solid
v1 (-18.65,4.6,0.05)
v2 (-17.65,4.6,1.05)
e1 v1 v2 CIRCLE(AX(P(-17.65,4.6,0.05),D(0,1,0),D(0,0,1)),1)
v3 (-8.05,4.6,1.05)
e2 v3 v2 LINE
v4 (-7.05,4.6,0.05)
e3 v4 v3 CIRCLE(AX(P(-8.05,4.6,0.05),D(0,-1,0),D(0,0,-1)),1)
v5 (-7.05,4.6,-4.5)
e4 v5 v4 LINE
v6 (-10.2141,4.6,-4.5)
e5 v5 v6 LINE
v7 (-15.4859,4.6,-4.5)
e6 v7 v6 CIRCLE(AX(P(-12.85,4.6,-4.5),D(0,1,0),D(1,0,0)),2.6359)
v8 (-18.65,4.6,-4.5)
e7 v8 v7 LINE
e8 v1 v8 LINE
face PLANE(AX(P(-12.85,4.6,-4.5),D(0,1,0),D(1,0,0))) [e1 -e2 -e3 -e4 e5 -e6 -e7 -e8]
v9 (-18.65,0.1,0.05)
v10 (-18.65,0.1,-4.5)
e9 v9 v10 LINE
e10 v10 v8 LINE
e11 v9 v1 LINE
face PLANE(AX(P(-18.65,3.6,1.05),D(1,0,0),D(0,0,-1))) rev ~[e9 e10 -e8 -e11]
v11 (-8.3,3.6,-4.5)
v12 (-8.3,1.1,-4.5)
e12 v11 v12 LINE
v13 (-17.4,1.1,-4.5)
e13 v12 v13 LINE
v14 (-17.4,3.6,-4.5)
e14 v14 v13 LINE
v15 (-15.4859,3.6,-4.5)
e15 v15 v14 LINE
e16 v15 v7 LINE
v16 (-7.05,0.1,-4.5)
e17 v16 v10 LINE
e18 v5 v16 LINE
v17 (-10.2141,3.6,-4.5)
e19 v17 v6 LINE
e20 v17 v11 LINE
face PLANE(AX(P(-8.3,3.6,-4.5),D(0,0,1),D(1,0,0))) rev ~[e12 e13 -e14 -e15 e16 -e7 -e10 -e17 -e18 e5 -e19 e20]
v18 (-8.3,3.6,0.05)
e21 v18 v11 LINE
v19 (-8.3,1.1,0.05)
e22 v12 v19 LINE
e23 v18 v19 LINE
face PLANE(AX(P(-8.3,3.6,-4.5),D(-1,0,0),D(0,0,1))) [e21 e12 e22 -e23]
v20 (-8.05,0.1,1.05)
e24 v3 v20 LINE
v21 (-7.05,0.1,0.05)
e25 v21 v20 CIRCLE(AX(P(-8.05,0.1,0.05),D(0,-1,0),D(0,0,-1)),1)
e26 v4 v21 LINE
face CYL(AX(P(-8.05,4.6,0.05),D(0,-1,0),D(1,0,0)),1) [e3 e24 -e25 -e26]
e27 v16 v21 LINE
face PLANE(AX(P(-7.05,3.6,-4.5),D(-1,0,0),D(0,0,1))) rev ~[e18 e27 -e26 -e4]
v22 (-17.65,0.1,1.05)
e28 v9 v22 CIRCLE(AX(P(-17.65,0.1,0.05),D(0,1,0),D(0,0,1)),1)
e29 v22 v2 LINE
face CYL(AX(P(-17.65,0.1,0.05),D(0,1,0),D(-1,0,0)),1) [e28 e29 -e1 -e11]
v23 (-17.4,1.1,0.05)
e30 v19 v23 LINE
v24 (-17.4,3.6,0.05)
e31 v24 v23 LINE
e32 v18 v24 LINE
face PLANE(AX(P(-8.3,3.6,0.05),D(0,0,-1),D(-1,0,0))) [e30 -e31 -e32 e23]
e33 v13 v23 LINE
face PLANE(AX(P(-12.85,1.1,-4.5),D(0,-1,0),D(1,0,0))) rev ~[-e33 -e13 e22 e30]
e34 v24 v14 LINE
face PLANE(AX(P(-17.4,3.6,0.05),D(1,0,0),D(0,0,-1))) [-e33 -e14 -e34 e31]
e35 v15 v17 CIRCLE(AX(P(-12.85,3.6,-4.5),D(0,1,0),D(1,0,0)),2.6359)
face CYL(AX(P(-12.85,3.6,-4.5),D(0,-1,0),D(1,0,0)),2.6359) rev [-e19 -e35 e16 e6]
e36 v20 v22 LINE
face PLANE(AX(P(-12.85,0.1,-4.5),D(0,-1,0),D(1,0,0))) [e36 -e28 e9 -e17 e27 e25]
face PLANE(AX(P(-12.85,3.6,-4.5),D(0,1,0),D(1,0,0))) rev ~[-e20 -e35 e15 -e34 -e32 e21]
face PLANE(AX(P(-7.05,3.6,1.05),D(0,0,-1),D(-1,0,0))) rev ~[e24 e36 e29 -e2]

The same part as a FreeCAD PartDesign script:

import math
import FreeCAD as App
import Part
import Sketcher
Q = App.Units.Quantity


def edges_at(feature, points):
    """Names of the edges that pass closest to the given points."""
    edges = feature.Shape.Edges
    near = lambda p: min(range(len(edges)), key=lambda i: edges[i].distToShape(Part.Vertex(*p))[0])
    return sorted({f"Edge{near(p) + 1}" for p in points})

doc = App.newDocument("Part")
params = doc.addObject("Spreadsheet::Sheet", "Params")
for row, (alias, value) in enumerate([
    ("sketch1_width", "11.6 mm"),
    ("sketch1_width2", "9.1 mm"),
    ("sketch1_height", "5.55 mm"),
    ("pad1_length", "2.5 mm"),
    ("sketch2_width", "11.6 mm"),
    ("sketch2_height", "5.55 mm"),
    ("pad2_length", "1 mm"),
    ("sketch3_width", "11.6 mm"),
    ("sketch3_height", "5.55 mm"),
    ("pad3_length", "1 mm"),
    ("fillet_radius", "1 mm"),
], start=1):
    params.set(f"A{row}", alias)
    params.set(f"B{row}", "=" + value)
    params.setAlias(f"B{row}", alias)

body = doc.addObject("PartDesign::Body", "Body")

# Sketch on XZ plane
sketch1 = body.newObject("Sketcher::SketchObject", "Sketch")
sketch1.AttachmentSupport = (doc.getObject("XZ_Plane"), [""])
sketch1.MapMode = "FlatFace"
sketch1.AttachmentOffset = App.Placement(App.Vector(0, 0, -3.6), App.Rotation())
sketch1.addGeometry(Part.LineSegment(App.Vector(-8.3, -4.5, 0), App.Vector(-7.05, -4.5, 0)), False)
sketch1.addGeometry(Part.LineSegment(App.Vector(-7.05, -4.5, 0), App.Vector(-7.05, 1.05, 0)), False)
sketch1.addGeometry(Part.LineSegment(App.Vector(-7.05, 1.05, 0), App.Vector(-18.65, 1.05, 0)), False)
sketch1.addGeometry(Part.LineSegment(App.Vector(-18.65, 1.05, 0), App.Vector(-18.65, -4.5, 0)), False)
sketch1.addGeometry(Part.LineSegment(App.Vector(-18.65, -4.5, 0), App.Vector(-17.4, -4.5, 0)), False)
sketch1.addGeometry(Part.LineSegment(App.Vector(-17.4, -4.5, 0), App.Vector(-17.4, 0.05, 0)), False)
sketch1.addGeometry(Part.LineSegment(App.Vector(-17.4, 0.05, 0), App.Vector(-8.3, 0.05, 0)), False)
sketch1.addGeometry(Part.LineSegment(App.Vector(-8.3, 0.05, 0), App.Vector(-8.3, -4.5, 0)), False)
sketch1.addConstraint(Sketcher.Constraint("Coincident", 0, 2, 1, 1))
sketch1.addConstraint(Sketcher.Constraint("Coincident", 1, 2, 2, 1))
sketch1.addConstraint(Sketcher.Constraint("Coincident", 2, 2, 3, 1))
sketch1.addConstraint(Sketcher.Constraint("Coincident", 3, 2, 4, 1))
sketch1.addConstraint(Sketcher.Constraint("Coincident", 4, 2, 5, 1))
sketch1.addConstraint(Sketcher.Constraint("Coincident", 5, 2, 6, 1))
sketch1.addConstraint(Sketcher.Constraint("Coincident", 6, 2, 7, 1))
sketch1.addConstraint(Sketcher.Constraint("Coincident", 7, 2, 0, 1))
sketch1.addConstraint(Sketcher.Constraint("Horizontal", 0))
sketch1.addConstraint(Sketcher.Constraint("Vertical", 1))
sketch1.addConstraint(Sketcher.Constraint("Horizontal", 2))
sketch1.addConstraint(Sketcher.Constraint("Vertical", 3))
sketch1.addConstraint(Sketcher.Constraint("Horizontal", 4))
sketch1.addConstraint(Sketcher.Constraint("Vertical", 5))
sketch1.addConstraint(Sketcher.Constraint("Horizontal", 6))
sketch1.addConstraint(Sketcher.Constraint("Vertical", 7))
sketch1.addConstraint(Sketcher.Constraint("Horizontal", 0, 2, 3, 2))
sketch1.addConstraint(Sketcher.Constraint("Equal", 0, 4))
sketch1.addConstraint(Sketcher.Constraint("DistanceY", 5, 2, 2, 2, Q("1 mm")))
sketch1.addConstraint(Sketcher.Constraint("DistanceX", 2, 2, 2, 1, Q("11.6 mm")))
sketch1.addConstraint(Sketcher.Constraint("DistanceX", 6, 1, 6, 2, Q("9.1 mm")))
sketch1.addConstraint(Sketcher.Constraint("DistanceY", 1, 1, 1, 2, Q("5.55 mm")))
sketch1.addConstraint(Sketcher.Constraint("DistanceY", 0, 2, -1, 1, Q("4.5 mm")))
sketch1.addConstraint(Sketcher.Constraint("DistanceX", 4, 2, -1, 1, Q("17.4 mm")))
sketch1.setExpression("Constraints[19]", "Params.sketch1_width")
sketch1.setExpression("Constraints[20]", "Params.sketch1_width2")
sketch1.setExpression("Constraints[21]", "Params.sketch1_height")
pad1 = body.newObject("PartDesign::Pad", "Pad")
pad1.Profile = sketch1
pad1.setExpression("Length", "Params.pad1_length")

# Sketch on XZ plane
sketch2 = body.newObject("Sketcher::SketchObject", "Sketch001")
sketch2.AttachmentSupport = (doc.getObject("XZ_Plane"), [""])
sketch2.MapMode = "FlatFace"
sketch2.AttachmentOffset = App.Placement(App.Vector(0, 0, -1.1), App.Rotation())
sketch2.addGeometry(Part.LineSegment(App.Vector(-18.65, -4.5, 0), App.Vector(-7.05, -4.5, 0)), False)
sketch2.addGeometry(Part.LineSegment(App.Vector(-7.05, -4.5, 0), App.Vector(-7.05, 1.05, 0)), False)
sketch2.addGeometry(Part.LineSegment(App.Vector(-7.05, 1.05, 0), App.Vector(-18.65, 1.05, 0)), False)
sketch2.addGeometry(Part.LineSegment(App.Vector(-18.65, 1.05, 0), App.Vector(-18.65, -4.5, 0)), False)
sketch2.addConstraint(Sketcher.Constraint("Coincident", 0, 2, 1, 1))
sketch2.addConstraint(Sketcher.Constraint("Coincident", 1, 2, 2, 1))
sketch2.addConstraint(Sketcher.Constraint("Coincident", 2, 2, 3, 1))
sketch2.addConstraint(Sketcher.Constraint("Coincident", 3, 2, 0, 1))
sketch2.addConstraint(Sketcher.Constraint("Horizontal", 0))
sketch2.addConstraint(Sketcher.Constraint("Vertical", 1))
sketch2.addConstraint(Sketcher.Constraint("Horizontal", 2))
sketch2.addConstraint(Sketcher.Constraint("Vertical", 3))
sketch2.addConstraint(Sketcher.Constraint("DistanceX", 0, 1, 0, 2, Q("11.6 mm")))
sketch2.addConstraint(Sketcher.Constraint("DistanceY", 1, 1, 1, 2, Q("5.55 mm")))
sketch2.addConstraint(Sketcher.Constraint("DistanceY", 0, 2, -1, 1, Q("4.5 mm")))
sketch2.addConstraint(Sketcher.Constraint("DistanceX", 0, 2, -1, 1, Q("7.05 mm")))
sketch2.setExpression("Constraints[8]", "Params.sketch2_width")
sketch2.setExpression("Constraints[9]", "Params.sketch2_height")
pad2 = body.newObject("PartDesign::Pad", "Pad001")
pad2.Profile = sketch2
pad2.setExpression("Length", "Params.pad2_length")

# Sketch on XZ plane
sketch3 = body.newObject("Sketcher::SketchObject", "Sketch002")
sketch3.AttachmentSupport = (doc.getObject("XZ_Plane"), [""])
sketch3.MapMode = "FlatFace"
sketch3.AttachmentOffset = App.Placement(App.Vector(0, 0, -3.6), App.Rotation())
sketch3.addGeometry(Part.LineSegment(App.Vector(-18.65, -4.5, 0), App.Vector(-18.65, 1.05, 0)), False)
sketch3.addGeometry(Part.LineSegment(App.Vector(-18.65, 1.05, 0), App.Vector(-7.05, 1.05, 0)), False)
sketch3.addGeometry(Part.LineSegment(App.Vector(-7.05, 1.05, 0), App.Vector(-7.05, -4.5, 0)), False)
sketch3.addGeometry(Part.LineSegment(App.Vector(-7.05, -4.5, 0), App.Vector(-10.2141, -4.5, 0)), False)
sketch3.addGeometry(Part.ArcOfCircle(Part.Circle(App.Vector(-12.85, -4.5, 0), App.Vector(0, 0, 1), 2.6359), math.radians(0), math.radians(180)), False)
sketch3.addGeometry(Part.LineSegment(App.Vector(-15.4859, -4.5, 0), App.Vector(-18.65, -4.5, 0)), False)
sketch3.addConstraint(Sketcher.Constraint("Coincident", 0, 2, 1, 1))
sketch3.addConstraint(Sketcher.Constraint("Coincident", 1, 2, 2, 1))
sketch3.addConstraint(Sketcher.Constraint("Coincident", 2, 2, 3, 1))
sketch3.addConstraint(Sketcher.Constraint("Coincident", 3, 2, 4, 1))
sketch3.addConstraint(Sketcher.Constraint("Coincident", 4, 2, 5, 1))
sketch3.addConstraint(Sketcher.Constraint("Coincident", 5, 2, 0, 1))
sketch3.addConstraint(Sketcher.Constraint("Vertical", 0))
sketch3.addConstraint(Sketcher.Constraint("Horizontal", 1))
sketch3.addConstraint(Sketcher.Constraint("Vertical", 2))
sketch3.addConstraint(Sketcher.Constraint("Horizontal", 3))
sketch3.addConstraint(Sketcher.Constraint("Horizontal", 5))
sketch3.addConstraint(Sketcher.Constraint("Horizontal", 4, 3, 2, 2))
sketch3.addConstraint(Sketcher.Constraint("Horizontal", 3, 2, 4, 2))
sketch3.addConstraint(Sketcher.Constraint("Equal", 3, 5))
sketch3.addConstraint(Sketcher.Constraint("DistanceX", 1, 1, 1, 2, Q("11.6 mm")))
sketch3.addConstraint(Sketcher.Constraint("Radius", 4, Q("2.636 mm")))
sketch3.addConstraint(Sketcher.Constraint("DistanceY", 0, 1, 0, 2, Q("5.55 mm")))
sketch3.addConstraint(Sketcher.Constraint("DistanceY", 4, 3, -1, 1, Q("4.5 mm")))
sketch3.addConstraint(Sketcher.Constraint("DistanceX", 4, 3, -1, 1, Q("12.85 mm")))
sketch3.setExpression("Constraints[14]", "Params.sketch3_width")
sketch3.setExpression("Constraints[16]", "Params.sketch3_height")
pad3 = body.newObject("PartDesign::Pad", "Pad002")
pad3.Profile = sketch3
pad3.setExpression("Length", "Params.pad3_length")
pad3.Reversed = True
doc.recompute()

fillet = body.newObject("PartDesign::Fillet", "Fillet")
fillet.Base = (pad3, edges_at(pad3, [(-18.65, 2.35, 1.05), (-7.05, 2.35, 1.05)]))
fillet.setExpression("Radius", "Params.fillet_radius")

doc.recompute()
